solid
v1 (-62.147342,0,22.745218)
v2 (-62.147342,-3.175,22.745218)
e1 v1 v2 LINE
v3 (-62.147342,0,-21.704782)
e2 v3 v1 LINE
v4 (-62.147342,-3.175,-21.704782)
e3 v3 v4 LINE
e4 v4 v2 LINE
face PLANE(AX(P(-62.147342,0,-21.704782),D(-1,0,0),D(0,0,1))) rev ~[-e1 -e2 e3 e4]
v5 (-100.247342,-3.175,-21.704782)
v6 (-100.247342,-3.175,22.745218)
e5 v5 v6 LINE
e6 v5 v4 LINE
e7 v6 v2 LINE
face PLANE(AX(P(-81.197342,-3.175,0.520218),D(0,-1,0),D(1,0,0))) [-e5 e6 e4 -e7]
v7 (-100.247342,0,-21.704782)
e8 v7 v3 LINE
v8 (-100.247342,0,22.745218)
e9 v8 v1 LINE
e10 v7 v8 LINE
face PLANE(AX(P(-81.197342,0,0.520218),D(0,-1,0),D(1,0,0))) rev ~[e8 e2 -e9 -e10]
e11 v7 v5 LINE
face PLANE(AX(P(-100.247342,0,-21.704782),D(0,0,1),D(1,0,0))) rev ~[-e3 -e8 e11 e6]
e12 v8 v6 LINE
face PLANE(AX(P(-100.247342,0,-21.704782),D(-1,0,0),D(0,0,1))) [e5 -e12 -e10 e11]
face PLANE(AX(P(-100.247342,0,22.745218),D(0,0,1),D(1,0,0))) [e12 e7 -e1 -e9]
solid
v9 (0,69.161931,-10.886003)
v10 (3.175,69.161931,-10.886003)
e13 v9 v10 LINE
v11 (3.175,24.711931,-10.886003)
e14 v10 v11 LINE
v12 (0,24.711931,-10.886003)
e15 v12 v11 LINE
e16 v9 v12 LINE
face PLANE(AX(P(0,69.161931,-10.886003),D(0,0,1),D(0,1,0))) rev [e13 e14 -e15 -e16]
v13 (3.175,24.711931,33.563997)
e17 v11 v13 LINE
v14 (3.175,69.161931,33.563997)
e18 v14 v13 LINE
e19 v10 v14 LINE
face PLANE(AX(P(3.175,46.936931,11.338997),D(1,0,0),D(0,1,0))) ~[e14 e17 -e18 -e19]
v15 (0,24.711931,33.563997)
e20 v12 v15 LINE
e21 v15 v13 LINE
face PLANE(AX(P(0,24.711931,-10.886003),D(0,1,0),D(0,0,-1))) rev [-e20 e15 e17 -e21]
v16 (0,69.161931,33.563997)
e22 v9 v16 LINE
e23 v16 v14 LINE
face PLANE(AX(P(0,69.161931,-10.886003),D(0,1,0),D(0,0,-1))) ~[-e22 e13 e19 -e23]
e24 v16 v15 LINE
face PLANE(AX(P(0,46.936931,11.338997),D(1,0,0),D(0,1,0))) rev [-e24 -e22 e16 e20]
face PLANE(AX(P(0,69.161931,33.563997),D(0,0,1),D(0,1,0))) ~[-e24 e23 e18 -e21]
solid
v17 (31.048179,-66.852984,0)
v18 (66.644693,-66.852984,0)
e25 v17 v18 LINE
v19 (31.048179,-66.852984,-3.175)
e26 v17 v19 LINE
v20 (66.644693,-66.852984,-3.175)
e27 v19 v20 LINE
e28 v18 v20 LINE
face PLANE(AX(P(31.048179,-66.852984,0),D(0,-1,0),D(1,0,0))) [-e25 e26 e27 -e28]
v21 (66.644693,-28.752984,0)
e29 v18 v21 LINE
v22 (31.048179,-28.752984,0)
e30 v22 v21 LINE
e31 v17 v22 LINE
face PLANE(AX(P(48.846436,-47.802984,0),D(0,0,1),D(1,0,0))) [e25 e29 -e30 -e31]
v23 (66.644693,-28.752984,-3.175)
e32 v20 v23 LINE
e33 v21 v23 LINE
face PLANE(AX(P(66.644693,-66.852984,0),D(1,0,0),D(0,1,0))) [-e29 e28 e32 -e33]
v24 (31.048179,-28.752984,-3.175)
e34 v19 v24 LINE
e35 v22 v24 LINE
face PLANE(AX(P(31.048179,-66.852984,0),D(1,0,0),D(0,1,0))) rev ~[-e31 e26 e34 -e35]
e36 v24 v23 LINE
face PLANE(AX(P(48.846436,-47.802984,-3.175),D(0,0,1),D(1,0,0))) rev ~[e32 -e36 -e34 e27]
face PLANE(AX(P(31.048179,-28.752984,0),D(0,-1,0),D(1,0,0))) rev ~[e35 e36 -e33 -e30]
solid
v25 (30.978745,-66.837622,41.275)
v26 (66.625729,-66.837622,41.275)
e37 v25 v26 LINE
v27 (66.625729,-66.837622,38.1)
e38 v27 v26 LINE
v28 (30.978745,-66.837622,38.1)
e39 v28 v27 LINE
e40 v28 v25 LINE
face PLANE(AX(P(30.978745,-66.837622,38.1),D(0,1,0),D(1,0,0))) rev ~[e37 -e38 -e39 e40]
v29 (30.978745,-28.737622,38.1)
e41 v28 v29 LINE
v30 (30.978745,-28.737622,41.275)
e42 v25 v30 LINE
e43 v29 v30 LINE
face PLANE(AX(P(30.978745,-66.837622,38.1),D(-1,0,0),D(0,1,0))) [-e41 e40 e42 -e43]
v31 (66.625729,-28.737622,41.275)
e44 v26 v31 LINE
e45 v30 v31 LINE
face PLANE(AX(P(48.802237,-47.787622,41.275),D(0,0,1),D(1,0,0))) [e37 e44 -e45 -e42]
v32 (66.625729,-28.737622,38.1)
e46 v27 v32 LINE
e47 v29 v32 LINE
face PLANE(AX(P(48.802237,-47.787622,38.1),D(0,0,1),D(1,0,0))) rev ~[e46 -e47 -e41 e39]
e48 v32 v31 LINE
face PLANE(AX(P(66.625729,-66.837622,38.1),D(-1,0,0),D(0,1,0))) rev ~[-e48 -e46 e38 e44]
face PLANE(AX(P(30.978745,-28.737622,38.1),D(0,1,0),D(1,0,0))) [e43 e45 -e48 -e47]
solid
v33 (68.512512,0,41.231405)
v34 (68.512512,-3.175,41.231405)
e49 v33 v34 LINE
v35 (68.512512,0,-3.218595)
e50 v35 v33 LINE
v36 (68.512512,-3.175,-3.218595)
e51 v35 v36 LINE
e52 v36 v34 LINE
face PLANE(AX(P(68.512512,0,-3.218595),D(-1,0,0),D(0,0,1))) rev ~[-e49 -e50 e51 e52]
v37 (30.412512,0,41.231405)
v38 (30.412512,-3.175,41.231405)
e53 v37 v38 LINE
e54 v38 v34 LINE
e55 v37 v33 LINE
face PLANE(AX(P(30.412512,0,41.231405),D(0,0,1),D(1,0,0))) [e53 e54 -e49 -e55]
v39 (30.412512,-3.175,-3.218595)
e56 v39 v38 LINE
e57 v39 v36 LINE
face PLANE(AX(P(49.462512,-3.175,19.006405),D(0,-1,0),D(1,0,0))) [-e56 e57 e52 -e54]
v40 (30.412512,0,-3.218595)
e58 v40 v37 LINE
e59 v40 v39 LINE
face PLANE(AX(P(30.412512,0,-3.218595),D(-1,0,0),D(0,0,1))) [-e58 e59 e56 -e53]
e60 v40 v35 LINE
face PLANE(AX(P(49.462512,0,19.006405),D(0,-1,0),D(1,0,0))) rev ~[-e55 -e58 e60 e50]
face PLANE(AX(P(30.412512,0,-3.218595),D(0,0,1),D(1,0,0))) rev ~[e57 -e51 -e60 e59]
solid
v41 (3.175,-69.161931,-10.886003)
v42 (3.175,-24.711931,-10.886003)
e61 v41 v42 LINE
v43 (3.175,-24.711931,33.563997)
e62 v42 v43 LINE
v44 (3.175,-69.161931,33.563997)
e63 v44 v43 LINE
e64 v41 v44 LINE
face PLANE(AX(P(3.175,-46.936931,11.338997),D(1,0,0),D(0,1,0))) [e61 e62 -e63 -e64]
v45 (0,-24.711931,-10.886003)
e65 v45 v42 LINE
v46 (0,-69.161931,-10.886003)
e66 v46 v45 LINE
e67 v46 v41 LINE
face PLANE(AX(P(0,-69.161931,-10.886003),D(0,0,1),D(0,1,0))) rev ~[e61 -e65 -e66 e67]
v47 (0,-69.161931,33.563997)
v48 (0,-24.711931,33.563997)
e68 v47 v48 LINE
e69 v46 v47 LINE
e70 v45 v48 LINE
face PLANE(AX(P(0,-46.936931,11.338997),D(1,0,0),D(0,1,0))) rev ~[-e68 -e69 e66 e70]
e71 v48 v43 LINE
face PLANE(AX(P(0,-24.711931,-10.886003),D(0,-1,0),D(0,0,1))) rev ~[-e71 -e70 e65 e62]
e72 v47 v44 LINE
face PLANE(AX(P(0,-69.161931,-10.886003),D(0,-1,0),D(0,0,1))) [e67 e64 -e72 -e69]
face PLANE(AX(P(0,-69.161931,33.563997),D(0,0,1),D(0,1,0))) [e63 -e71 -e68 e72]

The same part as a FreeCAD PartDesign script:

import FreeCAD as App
import Part
import Sketcher
Q = App.Units.Quantity


def add_polygon(sketch, points):
    """Adds a closed chain of lines whose ends are joined by coincident constraints."""
    first, n = sketch.GeometryCount, len(points)
    for a, b in zip(points, points[1:] + points[:1]):
        sketch.addGeometry(Part.LineSegment(App.Vector(*a, 0), App.Vector(*b, 0)), False)
    for i in range(n):
        sketch.addConstraint(Sketcher.Constraint("Coincident", first + i, 2, first + (i + 1) % n, 1))

doc = App.newDocument("Part")
body = doc.addObject("PartDesign::Body", "Body")

# Sketch on XY plane
sketch1 = body.newObject("Sketcher::SketchObject", "Sketch")
sketch1.AttachmentSupport = (doc.getObject("XY_Plane"), [""])
sketch1.MapMode = "FlatFace"
sketch1.AttachmentOffset = App.Placement(App.Vector(0, 0, 1.5 * 25.4), App.Rotation())
add_polygon(sketch1, [(31, -29), (31, -67), (67, -67), (67, -29)])  # lines 0-3
sketch1.addConstraint([
    Sketcher.Constraint("Vertical", 0),
    Sketcher.Constraint("Horizontal", 1),
    Sketcher.Constraint("Vertical", 2),
    Sketcher.Constraint("Horizontal", 3),
    Sketcher.Constraint("DistanceY", 0, 2, 0, 1, Q("1.5 in")),
    Sketcher.Constraint("DistanceX", 1, 1, 1, 2, Q("35.646984 mm")),
    Sketcher.Constraint("DistanceY", 0, 2, -1, 1, Q("66.837622 mm")),
    Sketcher.Constraint("DistanceX", -1, 1, 1, 2, Q("66.625729 mm")),
])
pad1 = body.newObject("PartDesign::Pad", "Pad")
pad1.Profile = sketch1
pad1.Length = Q("0.125 in")
body2 = doc.addObject("PartDesign::Body", "Body001")

# Sketch on XY plane
sketch2 = body2.newObject("Sketcher::SketchObject", "Sketch001")
sketch2.AttachmentSupport = (doc.getObject("XY_Plane001"), [""])
sketch2.MapMode = "FlatFace"
add_polygon(sketch2, [(31, -29), (31, -67), (67, -67), (67, -29)])  # lines 0-3
sketch2.addConstraint([
    Sketcher.Constraint("Vertical", 0),
    Sketcher.Constraint("Horizontal", 1),
    Sketcher.Constraint("Vertical", 2),
    Sketcher.Constraint("Horizontal", 3),
    Sketcher.Constraint("DistanceY", 0, 2, 0, 1, Q("1.5 in")),
    Sketcher.Constraint("DistanceX", 1, 1, 1, 2, Q("35.596514 mm")),
    Sketcher.Constraint("DistanceX", -1, 1, 0, 2, Q("31.048179 mm")),
    Sketcher.Constraint("DistanceY", 0, 2, -1, 1, Q("66.852984 mm")),
])
pad2 = body2.newObject("PartDesign::Pad", "Pad001")
pad2.Profile = sketch2
pad2.Length = Q("0.125 in")
pad2.Reversed = True
body3 = doc.addObject("PartDesign::Body", "Body002")

# Sketch on XZ plane
sketch3 = body3.newObject("Sketcher::SketchObject", "Sketch002")
sketch3.AttachmentSupport = (doc.getObject("XZ_Plane002"), [""])
sketch3.MapMode = "FlatFace"
add_polygon(sketch3, [(30, 41), (30, -3), (69, -3), (69, 41)])  # lines 0-3
sketch3.addConstraint([
    Sketcher.Constraint("Vertical", 0),
    Sketcher.Constraint("Horizontal", 1),
    Sketcher.Constraint("Vertical", 2),
    Sketcher.Constraint("Horizontal", 3),
    Sketcher.Constraint("DistanceX", 1, 1, 1, 2, Q("1.5 in")),
    Sketcher.Constraint("DistanceY", 0, 2, 0, 1, Q("1.75 in")),
    Sketcher.Constraint("DistanceX", -1, 1, 0, 2, Q("30.412512 mm")),
    Sketcher.Constraint("DistanceY", 0, 2, -1, 1, Q("3.218595 mm")),
])
pad3 = body3.newObject("PartDesign::Pad", "Pad002")
pad3.Profile = sketch3
pad3.Length = Q("0.125 in")
body4 = doc.addObject("PartDesign::Body", "Body003")

# Sketch on YZ plane
sketch4 = body4.newObject("Sketcher::SketchObject", "Sketch003")
sketch4.AttachmentSupport = (doc.getObject("YZ_Plane003"), [""])
sketch4.MapMode = "FlatFace"
add_polygon(sketch4, [(-69, 34), (-69, -11), (-25, -11), (-25, 34)])  # lines 0-3
sketch4.addConstraint([
    Sketcher.Constraint("Vertical", 0),
    Sketcher.Constraint("Horizontal", 1),
    Sketcher.Constraint("Vertical", 2),
    Sketcher.Constraint("Horizontal", 3),
    Sketcher.Constraint("Equal", 3, 0),
    Sketcher.Constraint("DistanceX", 1, 1, 1, 2, Q("1.75 in")),
    Sketcher.Constraint("DistanceX", 0, 2, -1, 1, Q("69.161931 mm")),
    Sketcher.Constraint("DistanceY", 0, 2, -1, 1, Q("10.886003 mm")),
])
pad4 = body4.newObject("PartDesign::Pad", "Pad003")
pad4.Profile = sketch4
pad4.Length = Q("0.125 in")
body5 = doc.addObject("PartDesign::Body", "Body004")

# Sketch on XZ plane
sketch5 = body5.newObject("Sketcher::SketchObject", "Sketch004")
sketch5.AttachmentSupport = (doc.getObject("XZ_Plane004"), [""])
sketch5.MapMode = "FlatFace"
add_polygon(sketch5, [(-100, 23), (-100, -22), (-62, -22), (-62, 23)])  # lines 0-3
sketch5.addConstraint([
    Sketcher.Constraint("Vertical", 0),
    Sketcher.Constraint("Horizontal", 1),
    Sketcher.Constraint("Vertical", 2),
    Sketcher.Constraint("Horizontal", 3),
    Sketcher.Constraint("DistanceX", 1, 1, 1, 2, Q("1.5 in")),
    Sketcher.Constraint("DistanceY", 0, 2, 0, 1, Q("1.75 in")),
    Sketcher.Constraint("DistanceX", 0, 2, -1, 1, Q("100.247342 mm")),
    Sketcher.Constraint("DistanceY", 0, 2, -1, 1, Q("21.704782 mm")),
])
pad5 = body5.newObject("PartDesign::Pad", "Pad004")
pad5.Profile = sketch5
pad5.Length = Q("0.125 in")
body6 = doc.addObject("PartDesign::Body", "Body005")
doc.recompute()

mirroring = doc.addObject("Part::Mirroring", "Mirroring")
mirroring.Source = body4
mirroring.Base = App.Vector(0, 0, 0)
mirroring.Normal = App.Vector(0, -1, 0)
body6.BaseFeature = mirroring
doc.recompute()
mirroring.Visibility = False

doc.recompute()
